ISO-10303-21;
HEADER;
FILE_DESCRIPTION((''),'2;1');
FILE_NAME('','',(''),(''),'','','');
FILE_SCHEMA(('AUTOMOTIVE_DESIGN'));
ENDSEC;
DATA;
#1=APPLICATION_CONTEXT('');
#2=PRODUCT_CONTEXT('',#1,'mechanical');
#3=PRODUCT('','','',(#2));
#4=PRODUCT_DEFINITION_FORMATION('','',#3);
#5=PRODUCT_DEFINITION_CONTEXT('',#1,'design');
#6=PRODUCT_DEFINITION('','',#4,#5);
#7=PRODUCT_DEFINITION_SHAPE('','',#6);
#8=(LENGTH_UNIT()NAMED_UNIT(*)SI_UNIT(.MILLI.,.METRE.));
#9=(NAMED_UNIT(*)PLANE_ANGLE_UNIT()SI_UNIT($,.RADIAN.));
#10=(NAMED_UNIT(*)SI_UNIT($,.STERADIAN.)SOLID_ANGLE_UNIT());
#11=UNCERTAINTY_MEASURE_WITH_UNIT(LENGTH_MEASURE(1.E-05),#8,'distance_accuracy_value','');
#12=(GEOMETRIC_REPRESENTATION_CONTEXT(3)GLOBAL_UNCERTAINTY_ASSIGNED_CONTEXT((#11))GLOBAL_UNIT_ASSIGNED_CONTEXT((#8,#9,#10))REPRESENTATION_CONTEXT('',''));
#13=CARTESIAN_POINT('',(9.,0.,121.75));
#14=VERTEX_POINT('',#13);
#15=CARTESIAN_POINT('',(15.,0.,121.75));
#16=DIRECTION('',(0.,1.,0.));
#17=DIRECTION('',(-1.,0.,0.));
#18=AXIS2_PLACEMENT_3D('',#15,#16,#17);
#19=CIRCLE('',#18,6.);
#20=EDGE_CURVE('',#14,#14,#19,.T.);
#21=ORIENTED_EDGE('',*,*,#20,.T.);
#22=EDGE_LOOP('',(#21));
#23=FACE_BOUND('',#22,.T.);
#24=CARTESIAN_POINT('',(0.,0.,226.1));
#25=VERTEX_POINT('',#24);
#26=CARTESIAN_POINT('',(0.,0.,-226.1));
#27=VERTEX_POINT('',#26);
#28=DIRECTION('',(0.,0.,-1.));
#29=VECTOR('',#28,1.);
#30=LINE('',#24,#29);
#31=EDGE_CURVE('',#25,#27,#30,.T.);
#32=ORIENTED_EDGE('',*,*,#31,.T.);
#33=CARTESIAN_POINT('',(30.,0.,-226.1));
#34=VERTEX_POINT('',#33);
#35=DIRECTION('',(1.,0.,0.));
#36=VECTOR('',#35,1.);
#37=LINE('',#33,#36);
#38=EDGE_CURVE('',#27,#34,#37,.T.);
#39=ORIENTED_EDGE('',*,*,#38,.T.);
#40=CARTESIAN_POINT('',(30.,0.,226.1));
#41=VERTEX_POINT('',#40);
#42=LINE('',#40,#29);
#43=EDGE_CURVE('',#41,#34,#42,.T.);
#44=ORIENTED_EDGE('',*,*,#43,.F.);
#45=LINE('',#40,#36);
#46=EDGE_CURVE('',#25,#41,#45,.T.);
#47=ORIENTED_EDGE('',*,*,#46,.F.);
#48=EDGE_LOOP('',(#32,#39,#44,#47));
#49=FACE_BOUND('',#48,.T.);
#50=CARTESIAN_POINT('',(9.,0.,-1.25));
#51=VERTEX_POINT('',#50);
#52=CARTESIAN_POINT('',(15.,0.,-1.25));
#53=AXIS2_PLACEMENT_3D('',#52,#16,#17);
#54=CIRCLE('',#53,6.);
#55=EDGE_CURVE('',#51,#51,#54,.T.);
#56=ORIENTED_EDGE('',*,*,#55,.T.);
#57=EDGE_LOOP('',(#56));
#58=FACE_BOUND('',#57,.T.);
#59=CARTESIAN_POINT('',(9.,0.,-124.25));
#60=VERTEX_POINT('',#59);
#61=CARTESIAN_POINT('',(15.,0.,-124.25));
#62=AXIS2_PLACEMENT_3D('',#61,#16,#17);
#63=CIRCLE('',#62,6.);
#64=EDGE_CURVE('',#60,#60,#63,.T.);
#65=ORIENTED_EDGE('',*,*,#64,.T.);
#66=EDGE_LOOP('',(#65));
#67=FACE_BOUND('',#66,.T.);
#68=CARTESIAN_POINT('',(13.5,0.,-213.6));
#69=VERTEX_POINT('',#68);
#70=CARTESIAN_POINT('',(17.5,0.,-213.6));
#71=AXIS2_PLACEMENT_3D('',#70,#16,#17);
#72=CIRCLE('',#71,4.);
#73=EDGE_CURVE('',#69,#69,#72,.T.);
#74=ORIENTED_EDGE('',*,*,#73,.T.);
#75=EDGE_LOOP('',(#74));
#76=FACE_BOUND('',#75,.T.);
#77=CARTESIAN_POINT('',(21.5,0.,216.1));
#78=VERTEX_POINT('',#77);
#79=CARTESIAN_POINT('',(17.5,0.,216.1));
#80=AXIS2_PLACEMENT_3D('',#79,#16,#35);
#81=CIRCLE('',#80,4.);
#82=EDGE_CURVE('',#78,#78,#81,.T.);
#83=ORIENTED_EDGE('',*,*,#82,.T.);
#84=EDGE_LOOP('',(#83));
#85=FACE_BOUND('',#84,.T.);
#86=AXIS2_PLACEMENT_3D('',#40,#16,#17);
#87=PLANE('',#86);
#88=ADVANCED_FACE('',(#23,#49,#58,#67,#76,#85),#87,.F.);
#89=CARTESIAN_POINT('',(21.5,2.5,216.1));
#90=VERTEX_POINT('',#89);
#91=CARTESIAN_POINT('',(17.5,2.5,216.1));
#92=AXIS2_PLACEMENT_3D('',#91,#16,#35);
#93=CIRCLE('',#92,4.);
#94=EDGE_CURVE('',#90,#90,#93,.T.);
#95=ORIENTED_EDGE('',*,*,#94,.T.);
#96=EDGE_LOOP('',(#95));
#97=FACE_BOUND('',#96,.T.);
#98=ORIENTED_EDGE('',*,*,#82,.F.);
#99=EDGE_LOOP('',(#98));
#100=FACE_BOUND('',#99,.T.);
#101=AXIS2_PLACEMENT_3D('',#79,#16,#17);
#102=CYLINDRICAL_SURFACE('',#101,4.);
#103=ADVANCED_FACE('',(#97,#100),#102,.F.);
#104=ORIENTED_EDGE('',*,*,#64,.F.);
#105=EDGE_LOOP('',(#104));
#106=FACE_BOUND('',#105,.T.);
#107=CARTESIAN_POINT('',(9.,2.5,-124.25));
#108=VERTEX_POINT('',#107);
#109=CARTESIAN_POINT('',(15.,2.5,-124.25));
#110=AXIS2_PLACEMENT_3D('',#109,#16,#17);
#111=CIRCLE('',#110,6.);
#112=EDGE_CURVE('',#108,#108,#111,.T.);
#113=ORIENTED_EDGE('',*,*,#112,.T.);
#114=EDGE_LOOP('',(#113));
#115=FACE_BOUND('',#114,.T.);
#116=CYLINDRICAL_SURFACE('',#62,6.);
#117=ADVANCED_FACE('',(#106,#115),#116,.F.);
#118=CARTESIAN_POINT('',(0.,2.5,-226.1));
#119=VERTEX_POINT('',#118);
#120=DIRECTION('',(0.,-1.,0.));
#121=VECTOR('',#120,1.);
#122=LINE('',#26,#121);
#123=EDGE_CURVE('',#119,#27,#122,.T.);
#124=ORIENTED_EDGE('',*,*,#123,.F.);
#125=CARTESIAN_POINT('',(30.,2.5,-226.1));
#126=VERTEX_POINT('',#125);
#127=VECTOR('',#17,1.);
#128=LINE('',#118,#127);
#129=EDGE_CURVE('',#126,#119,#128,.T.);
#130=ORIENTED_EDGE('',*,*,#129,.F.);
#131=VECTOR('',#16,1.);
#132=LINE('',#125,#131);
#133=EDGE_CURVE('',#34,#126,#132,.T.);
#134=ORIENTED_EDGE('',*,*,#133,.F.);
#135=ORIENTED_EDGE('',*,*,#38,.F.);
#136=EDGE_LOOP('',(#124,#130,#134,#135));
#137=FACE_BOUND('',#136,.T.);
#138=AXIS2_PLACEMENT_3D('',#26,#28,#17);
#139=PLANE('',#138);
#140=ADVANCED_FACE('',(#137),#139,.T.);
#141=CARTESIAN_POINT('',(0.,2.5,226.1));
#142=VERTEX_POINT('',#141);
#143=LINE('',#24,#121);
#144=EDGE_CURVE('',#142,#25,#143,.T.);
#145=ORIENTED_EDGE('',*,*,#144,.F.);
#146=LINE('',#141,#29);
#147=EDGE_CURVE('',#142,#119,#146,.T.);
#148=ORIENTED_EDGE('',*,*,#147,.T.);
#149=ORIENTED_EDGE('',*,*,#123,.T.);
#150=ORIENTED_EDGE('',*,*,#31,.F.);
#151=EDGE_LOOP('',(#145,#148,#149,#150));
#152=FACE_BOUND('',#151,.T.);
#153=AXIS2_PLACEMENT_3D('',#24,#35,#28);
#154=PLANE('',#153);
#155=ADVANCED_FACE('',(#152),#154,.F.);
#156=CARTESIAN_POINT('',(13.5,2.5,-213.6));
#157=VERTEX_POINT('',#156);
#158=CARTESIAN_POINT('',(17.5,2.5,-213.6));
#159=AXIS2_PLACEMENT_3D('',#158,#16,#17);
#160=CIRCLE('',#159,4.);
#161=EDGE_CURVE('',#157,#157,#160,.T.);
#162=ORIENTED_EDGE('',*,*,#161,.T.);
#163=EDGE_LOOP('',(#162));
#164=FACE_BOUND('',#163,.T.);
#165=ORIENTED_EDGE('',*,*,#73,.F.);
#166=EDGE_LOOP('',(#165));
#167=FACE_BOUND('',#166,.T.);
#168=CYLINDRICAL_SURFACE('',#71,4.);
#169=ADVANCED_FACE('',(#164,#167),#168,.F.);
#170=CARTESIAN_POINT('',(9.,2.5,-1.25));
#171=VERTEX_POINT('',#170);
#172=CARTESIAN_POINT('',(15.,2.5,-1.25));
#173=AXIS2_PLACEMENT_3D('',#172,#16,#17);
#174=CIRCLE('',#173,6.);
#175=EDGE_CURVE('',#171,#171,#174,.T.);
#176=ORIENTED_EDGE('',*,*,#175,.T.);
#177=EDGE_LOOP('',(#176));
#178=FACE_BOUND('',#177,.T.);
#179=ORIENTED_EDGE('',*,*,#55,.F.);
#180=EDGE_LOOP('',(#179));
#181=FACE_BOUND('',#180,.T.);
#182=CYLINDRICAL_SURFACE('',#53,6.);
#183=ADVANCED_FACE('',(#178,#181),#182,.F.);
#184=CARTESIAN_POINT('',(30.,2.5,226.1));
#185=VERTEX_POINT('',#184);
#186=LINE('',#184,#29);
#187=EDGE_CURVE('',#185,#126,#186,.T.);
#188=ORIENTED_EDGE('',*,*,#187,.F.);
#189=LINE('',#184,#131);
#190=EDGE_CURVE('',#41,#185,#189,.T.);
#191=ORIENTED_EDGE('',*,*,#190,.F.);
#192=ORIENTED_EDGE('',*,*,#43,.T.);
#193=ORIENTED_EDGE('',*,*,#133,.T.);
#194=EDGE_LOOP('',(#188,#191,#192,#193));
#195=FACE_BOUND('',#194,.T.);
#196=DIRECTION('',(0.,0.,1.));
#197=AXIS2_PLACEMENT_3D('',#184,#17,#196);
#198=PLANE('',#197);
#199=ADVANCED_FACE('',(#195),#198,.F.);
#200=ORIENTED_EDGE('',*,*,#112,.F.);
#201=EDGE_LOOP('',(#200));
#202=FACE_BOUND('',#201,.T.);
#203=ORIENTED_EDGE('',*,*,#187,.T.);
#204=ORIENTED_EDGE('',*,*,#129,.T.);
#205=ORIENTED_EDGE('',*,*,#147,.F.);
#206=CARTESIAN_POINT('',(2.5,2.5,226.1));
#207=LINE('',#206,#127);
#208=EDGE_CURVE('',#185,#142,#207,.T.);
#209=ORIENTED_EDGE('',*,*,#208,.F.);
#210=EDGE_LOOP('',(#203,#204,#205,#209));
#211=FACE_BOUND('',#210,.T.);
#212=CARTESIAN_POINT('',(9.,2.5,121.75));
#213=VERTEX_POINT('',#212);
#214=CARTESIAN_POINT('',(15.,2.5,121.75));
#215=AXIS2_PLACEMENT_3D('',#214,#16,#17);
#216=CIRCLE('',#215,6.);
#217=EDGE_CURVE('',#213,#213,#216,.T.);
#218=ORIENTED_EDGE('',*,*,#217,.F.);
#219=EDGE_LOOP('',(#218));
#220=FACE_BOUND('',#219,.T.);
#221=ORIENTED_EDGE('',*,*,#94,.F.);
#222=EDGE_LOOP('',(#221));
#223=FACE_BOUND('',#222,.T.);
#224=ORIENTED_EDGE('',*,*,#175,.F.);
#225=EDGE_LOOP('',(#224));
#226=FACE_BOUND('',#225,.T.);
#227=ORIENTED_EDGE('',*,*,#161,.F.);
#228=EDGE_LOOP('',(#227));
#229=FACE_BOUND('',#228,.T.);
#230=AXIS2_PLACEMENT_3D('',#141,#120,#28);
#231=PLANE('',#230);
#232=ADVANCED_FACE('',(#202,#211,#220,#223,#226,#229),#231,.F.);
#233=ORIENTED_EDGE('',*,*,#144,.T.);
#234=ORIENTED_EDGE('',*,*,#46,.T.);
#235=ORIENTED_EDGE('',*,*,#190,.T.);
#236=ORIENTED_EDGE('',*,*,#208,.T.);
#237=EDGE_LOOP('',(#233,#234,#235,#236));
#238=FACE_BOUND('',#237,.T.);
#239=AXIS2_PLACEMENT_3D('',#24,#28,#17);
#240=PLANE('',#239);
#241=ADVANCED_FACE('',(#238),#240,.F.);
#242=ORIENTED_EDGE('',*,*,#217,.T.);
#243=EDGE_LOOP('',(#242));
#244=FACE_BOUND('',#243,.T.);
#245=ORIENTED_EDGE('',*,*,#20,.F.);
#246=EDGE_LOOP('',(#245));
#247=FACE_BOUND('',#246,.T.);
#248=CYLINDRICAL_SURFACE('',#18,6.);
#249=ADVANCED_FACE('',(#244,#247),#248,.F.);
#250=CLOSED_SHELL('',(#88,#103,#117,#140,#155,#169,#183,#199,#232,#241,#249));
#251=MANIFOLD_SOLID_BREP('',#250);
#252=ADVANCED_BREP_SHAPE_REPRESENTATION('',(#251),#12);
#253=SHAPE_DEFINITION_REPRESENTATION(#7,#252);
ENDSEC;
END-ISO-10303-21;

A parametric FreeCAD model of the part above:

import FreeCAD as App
import Part
import Sketcher

V = App.Vector
Q = App.Units.Quantity

doc = App.newDocument("Part")
body = doc.addObject("PartDesign::Body", "Body")

# Sketch on XY plane
sketch1 = body.newObject("Sketcher::SketchObject", "Sketch")
sketch1.AttachmentSupport = (doc.getObject("XY_Plane"), [""])
sketch1.MapMode = "FlatFace"
sketch1.addGeometry(Part.LineSegment(V(0, 2.5, 0), V(0, 0, 0)), False)
sketch1.addGeometry(Part.LineSegment(V(0, 0, 0), V(30, 0, 0)), False)
sketch1.addGeometry(Part.LineSegment(V(30, 0, 0), V(30, 2.5, 0)), False)
sketch1.addGeometry(Part.LineSegment(V(30, 2.5, 0), V(0, 2.5, 0)), False)
sketch1.addConstraint(Sketcher.Constraint("Coincident", 0, 2, 1, 1))
sketch1.addConstraint(Sketcher.Constraint("Coincident", 1, 2, 2, 1))
sketch1.addConstraint(Sketcher.Constraint("Coincident", 2, 2, 3, 1))
sketch1.addConstraint(Sketcher.Constraint("Coincident", 3, 2, 0, 1))
sketch1.addConstraint(Sketcher.Constraint("Vertical", 0))
sketch1.addConstraint(Sketcher.Constraint("Horizontal", 1))
sketch1.addConstraint(Sketcher.Constraint("Vertical", 2))
sketch1.addConstraint(Sketcher.Constraint("Horizontal", 3))
sketch1.addConstraint(Sketcher.Constraint("Coincident", 0, 2, -1, 1))
sketch1.addConstraint(Sketcher.Constraint("DistanceX", 1, 1, 1, 2, Q("30 mm")))
sketch1.addConstraint(Sketcher.Constraint("DistanceY", 0, 2, 0, 1, Q("2.5 mm")))
pad1 = body.newObject("PartDesign::Pad", "Pad")
pad1.Profile = sketch1
pad1.Length = 452.2
pad1.Midplane = True

# Sketch on XZ plane
sketch2 = body.newObject("Sketcher::SketchObject", "Sketch001")
sketch2.AttachmentSupport = (doc.getObject("XZ_Plane"), [""])
sketch2.MapMode = "FlatFace"
sketch2.AttachmentOffset = App.Placement(V(0, 0, -2.5), App.Rotation())
sketch2.addGeometry(Part.Circle(V(17.5, -213.6, 0), V(0, 0, 1), 4), False)
sketch2.addGeometry(Part.Circle(V(17.5, 216.1, 0), V(0, 0, 1), 4), False)
sketch2.addGeometry(Part.Circle(V(15, 121.8, 0), V(0, 0, 1), 6), False)
sketch2.addGeometry(Part.Circle(V(15, -124.2, 0), V(0, 0, 1), 6), False)
sketch2.addGeometry(Part.Circle(V(15, -1.2, 0), V(0, 0, 1), 6), False)
sketch2.addConstraint(Sketcher.Constraint("Equal", 0, 1))
sketch2.addConstraint(Sketcher.Constraint("Equal", 2, 3))
sketch2.addConstraint(Sketcher.Constraint("Equal", 3, 4))
sketch2.addConstraint(Sketcher.Constraint("Vertical", 0, 3, 1, 3))
sketch2.addConstraint(Sketcher.Constraint("Vertical", 2, 3, 3, 3))
sketch2.addConstraint(Sketcher.Constraint("Vertical", 3, 3, 4, 3))
sketch2.addConstraint(Sketcher.Constraint("Diameter", 0, Q("8 mm")))
sketch2.addConstraint(Sketcher.Constraint("Diameter", 2, Q("12 mm")))
sketch2.addConstraint(Sketcher.Constraint("DistanceX", -1, 1, 2, 3, Q("15 mm")))
sketch2.addConstraint(Sketcher.Constraint("DistanceY", 3, 3, 2, 3, Q("246 mm")))
sketch2.addConstraint(Sketcher.Constraint("DistanceY", 4, 3, 2, 3, Q("123 mm")))
sketch2.addConstraint(Sketcher.Constraint("DistanceX", -1, 1, 0, 3, Q("17.5 mm")))
sketch2.addConstraint(Sketcher.Constraint("DistanceY", 0, 3, -1, 1, Q("213.6 mm")))
sketch2.addConstraint(Sketcher.Constraint("DistanceY", -1, 1, 1, 3, Q("216.1 mm")))
sketch2.addConstraint(Sketcher.Constraint("DistanceY", -1, 1, 2, 3, Q("121.75 mm")))
pocket1 = body.newObject("PartDesign::Pocket", "Pocket")
pocket1.Profile = sketch2
pocket1.Type = "ThroughAll"
pocket1.Reversed = True

doc.recompute()
